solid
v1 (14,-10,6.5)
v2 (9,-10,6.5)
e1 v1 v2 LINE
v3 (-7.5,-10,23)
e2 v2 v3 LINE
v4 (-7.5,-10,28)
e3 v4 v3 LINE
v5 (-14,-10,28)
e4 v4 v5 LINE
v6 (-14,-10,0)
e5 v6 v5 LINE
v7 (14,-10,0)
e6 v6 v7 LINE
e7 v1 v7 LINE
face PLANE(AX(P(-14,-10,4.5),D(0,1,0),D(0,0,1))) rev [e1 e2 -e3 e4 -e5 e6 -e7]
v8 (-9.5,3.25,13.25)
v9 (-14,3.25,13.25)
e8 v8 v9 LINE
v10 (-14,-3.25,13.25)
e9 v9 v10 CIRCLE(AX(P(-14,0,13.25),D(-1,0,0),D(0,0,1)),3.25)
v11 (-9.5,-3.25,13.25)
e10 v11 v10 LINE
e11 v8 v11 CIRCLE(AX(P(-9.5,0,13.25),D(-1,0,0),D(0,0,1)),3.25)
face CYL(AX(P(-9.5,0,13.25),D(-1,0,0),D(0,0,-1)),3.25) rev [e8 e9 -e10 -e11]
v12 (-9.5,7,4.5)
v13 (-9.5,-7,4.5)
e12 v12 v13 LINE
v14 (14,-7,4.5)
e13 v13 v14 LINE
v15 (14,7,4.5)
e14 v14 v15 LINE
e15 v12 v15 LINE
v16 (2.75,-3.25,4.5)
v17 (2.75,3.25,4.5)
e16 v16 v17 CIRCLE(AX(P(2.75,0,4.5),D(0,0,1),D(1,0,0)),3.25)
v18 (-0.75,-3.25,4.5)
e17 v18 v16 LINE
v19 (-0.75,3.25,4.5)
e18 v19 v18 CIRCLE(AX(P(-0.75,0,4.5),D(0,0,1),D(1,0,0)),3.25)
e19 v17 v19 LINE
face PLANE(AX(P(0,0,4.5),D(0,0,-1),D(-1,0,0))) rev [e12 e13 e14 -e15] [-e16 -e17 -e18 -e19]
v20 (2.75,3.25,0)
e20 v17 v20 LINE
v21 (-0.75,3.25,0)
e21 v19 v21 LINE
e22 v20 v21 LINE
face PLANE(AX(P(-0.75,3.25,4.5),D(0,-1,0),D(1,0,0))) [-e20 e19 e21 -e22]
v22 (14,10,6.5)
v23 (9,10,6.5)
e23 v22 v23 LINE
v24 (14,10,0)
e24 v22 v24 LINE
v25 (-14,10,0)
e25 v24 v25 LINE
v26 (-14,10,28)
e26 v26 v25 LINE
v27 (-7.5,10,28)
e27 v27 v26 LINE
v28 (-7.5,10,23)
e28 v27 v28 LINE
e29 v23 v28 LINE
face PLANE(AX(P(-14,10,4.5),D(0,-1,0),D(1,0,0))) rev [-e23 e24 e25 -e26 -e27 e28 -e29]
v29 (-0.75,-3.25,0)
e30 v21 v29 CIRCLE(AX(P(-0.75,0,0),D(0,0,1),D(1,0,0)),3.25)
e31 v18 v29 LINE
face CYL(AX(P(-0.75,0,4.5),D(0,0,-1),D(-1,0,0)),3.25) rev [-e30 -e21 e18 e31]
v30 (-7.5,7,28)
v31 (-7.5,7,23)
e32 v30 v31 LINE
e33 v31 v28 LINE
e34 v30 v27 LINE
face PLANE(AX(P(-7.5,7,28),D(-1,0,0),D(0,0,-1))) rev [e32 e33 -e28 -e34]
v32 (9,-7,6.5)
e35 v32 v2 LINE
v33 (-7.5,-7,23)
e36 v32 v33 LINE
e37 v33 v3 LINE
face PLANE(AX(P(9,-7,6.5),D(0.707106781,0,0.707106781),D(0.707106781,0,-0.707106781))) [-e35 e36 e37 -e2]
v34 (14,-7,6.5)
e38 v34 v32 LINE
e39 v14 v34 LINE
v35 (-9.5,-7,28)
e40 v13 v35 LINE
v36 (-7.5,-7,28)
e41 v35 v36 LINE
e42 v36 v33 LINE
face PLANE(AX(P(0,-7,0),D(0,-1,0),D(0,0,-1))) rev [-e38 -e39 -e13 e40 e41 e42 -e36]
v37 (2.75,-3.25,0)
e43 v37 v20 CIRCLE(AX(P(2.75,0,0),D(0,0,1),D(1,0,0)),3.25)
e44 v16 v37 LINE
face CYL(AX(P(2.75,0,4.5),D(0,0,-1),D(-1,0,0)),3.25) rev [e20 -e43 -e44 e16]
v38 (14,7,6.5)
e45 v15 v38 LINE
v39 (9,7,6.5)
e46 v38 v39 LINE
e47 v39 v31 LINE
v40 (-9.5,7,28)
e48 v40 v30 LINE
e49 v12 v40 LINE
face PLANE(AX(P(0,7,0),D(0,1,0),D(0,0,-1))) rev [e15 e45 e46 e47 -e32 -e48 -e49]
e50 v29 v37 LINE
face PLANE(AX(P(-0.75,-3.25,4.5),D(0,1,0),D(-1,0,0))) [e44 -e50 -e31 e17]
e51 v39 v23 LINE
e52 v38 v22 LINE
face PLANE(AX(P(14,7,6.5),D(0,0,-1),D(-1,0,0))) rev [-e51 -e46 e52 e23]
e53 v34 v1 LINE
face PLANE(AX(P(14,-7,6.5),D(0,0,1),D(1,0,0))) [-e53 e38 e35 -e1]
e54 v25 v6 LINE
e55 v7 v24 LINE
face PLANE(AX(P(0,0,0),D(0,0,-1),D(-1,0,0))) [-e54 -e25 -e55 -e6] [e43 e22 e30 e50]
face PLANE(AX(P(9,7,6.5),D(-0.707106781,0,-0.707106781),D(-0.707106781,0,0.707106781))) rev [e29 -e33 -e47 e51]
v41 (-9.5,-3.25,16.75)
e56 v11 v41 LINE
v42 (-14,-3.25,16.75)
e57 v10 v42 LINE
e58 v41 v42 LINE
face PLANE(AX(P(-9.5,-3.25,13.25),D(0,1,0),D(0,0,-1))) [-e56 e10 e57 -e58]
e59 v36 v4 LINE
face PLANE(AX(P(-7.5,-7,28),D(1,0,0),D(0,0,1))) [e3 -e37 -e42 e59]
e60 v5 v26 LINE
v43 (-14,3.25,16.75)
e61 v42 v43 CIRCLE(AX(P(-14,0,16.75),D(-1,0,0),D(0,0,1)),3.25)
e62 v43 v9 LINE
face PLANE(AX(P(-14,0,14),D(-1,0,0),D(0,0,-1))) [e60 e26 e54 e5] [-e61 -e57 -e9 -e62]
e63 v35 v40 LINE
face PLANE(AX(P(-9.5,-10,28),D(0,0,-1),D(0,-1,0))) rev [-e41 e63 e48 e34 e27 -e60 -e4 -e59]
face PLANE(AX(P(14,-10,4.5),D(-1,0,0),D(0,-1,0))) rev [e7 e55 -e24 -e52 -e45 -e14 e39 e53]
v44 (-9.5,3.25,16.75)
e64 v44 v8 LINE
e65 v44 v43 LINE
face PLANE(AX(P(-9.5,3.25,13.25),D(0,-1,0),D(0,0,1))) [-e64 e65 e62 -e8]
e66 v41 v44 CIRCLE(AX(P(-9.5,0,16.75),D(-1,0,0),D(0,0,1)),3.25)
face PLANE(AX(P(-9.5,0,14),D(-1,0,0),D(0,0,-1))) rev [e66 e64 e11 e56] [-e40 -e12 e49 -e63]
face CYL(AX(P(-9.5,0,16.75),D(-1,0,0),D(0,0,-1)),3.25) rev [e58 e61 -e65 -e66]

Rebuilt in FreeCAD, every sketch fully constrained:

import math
import FreeCAD as App
import Part
import Sketcher
Q = App.Units.Quantity


def add_polygon(sketch, points):
    """Adds a closed chain of lines whose ends are joined by coincident constraints."""
    first, n = sketch.GeometryCount, len(points)
    for a, b in zip(points, points[1:] + points[:1]):
        sketch.addGeometry(Part.LineSegment(App.Vector(*a, 0), App.Vector(*b, 0)), False)
    for i in range(n):
        sketch.addConstraint(Sketcher.Constraint("Coincident", first + i, 2, first + (i + 1) % n, 1))

doc = App.newDocument("Part")
params = doc.addObject("Spreadsheet::Sheet", "Params")
for row, (alias, value) in enumerate([
    ("sketch1_width", "28 mm"),
    ("sketch1_height", "20 mm"),
    ("sketch1_radius", "3.25 mm"),
    ("sketch1_width2", "3.5 mm"),
    ("pad1_length", "4.5 mm"),
    ("sketch2_width", "4.5 mm"),
    ("pocket1_length", "22 mm"),
    ("sketch3_width", "5 mm"),
    ("sketch3_height", "2 mm"),
    ("sketch3_width2", "23.5 mm"),
    ("pad2_length", "3 mm"),
], start=1):
    params.set(f"A{row}", alias)
    params.set(f"B{row}", "=" + value)
    params.setAlias(f"B{row}", alias)

body = doc.addObject("PartDesign::Body", "Body")

# Sketch on XY plane
sketch1 = doc.addObject("Sketcher::SketchObject", "Sketch")
body.addObject(sketch1)
sketch1.AttachmentSupport = (doc.XY_Plane, [""])
sketch1.MapMode = "FlatFace"
add_polygon(sketch1, [(-14, 10), (-14, -10), (14, -10), (14, 10)])  # lines 0-3
sketch1.addGeometry(Part.ArcOfCircle(Part.Circle(App.Vector(-0.8, 0, 0), App.Vector(0, 0, 1), 3.2), math.radians(90), math.radians(270)), False)  # 4
sketch1.addGeometry(Part.LineSegment(App.Vector(-0.8, 3.2, 0), App.Vector(2.8, 3.2, 0)), False)  # 5
sketch1.addGeometry(Part.ArcOfCircle(Part.Circle(App.Vector(2.8, 0, 0), App.Vector(0, 0, 1), 3.2), math.radians(-90), math.radians(90)), False)  # 6
sketch1.addGeometry(Part.LineSegment(App.Vector(2.8, -3.2, 0), App.Vector(-0.8, -3.2, 0)), False)  # 7
sketch1.addConstraint(Sketcher.Constraint("Tangent", 4, 1, 5, 1))
sketch1.addConstraint(Sketcher.Constraint("Tangent", 5, 2, 6, 2))
sketch1.addConstraint(Sketcher.Constraint("Tangent", 6, 1, 7, 1))
sketch1.addConstraint(Sketcher.Constraint("Tangent", 7, 2, 4, 2))
sketch1.addConstraint(Sketcher.Constraint("Vertical", 0))
sketch1.addConstraint(Sketcher.Constraint("Horizontal", 1))
sketch1.addConstraint(Sketcher.Constraint("Vertical", 2))
sketch1.addConstraint(Sketcher.Constraint("Horizontal", 3))
sketch1.addConstraint(Sketcher.Constraint("Horizontal", 5))
sketch1.addConstraint(Sketcher.Constraint("Horizontal", 7))
sketch1.addConstraint(Sketcher.Constraint("Symmetric", 0, 2, 2, 2, -1, 1))
sketch1.addConstraint(Sketcher.Constraint("PointOnObject", 4, 3, -1))
sketch1.addConstraint(Sketcher.Constraint("DistanceX", 1, 1, 1, 2, 28.0))
sketch1.addConstraint(Sketcher.Constraint("DistanceY", 0, 2, 0, 1, 20.0))
sketch1.addConstraint(Sketcher.Constraint("Radius", 4, 3.25))
sketch1.addConstraint(Sketcher.Constraint("DistanceX", 5, 1, 5, 2, 3.5))
sketch1.addConstraint(Sketcher.Constraint("DistanceX", 4, 3, -1, 1, 0.75))
sketch1.setExpression("Constraints[16]", "Params.sketch1_width")
sketch1.setExpression("Constraints[17]", "Params.sketch1_height")
sketch1.setExpression("Constraints[18]", "Params.sketch1_radius")
sketch1.setExpression("Constraints[19]", "Params.sketch1_width2")
pad1 = doc.addObject("PartDesign::Pad", "Pad")
body.addObject(pad1)
pad1.Profile = sketch1
pad1.setExpression("Length", "Params.pad1_length")

# Sketch on XZ plane
sketch2 = doc.addObject("Sketcher::SketchObject", "Sketch001")
body.addObject(sketch2)
sketch2.AttachmentSupport = (doc.XZ_Plane, [""])
sketch2.MapMode = "FlatFace"
sketch2.AttachmentOffset = App.Placement(App.Vector(0, 0, 10), App.Rotation())
add_polygon(sketch2, [(-14, 0), (-9.5, 4.5), (-14, 4.5)])  # lines 0-2
sketch2.addConstraint(Sketcher.Constraint("Horizontal", 1))
sketch2.addConstraint(Sketcher.Constraint("Vertical", 2))
sketch2.addConstraint(Sketcher.Constraint("PointOnObject", 2, 2, -1))
sketch2.addConstraint(Sketcher.Constraint("Equal", 1, 2))
sketch2.addConstraint(Sketcher.Constraint("DistanceX", 1, 2, 1, 1, 4.5))
sketch2.addConstraint(Sketcher.Constraint("DistanceX", 1, 2, -1, 1, 14.0))
sketch2.setExpression("Constraints[7]", "Params.sketch2_width")
pocket1 = doc.addObject("PartDesign::Pocket", "Pocket")
body.addObject(pocket1)
pocket1.Profile = sketch2
pocket1.setExpression("Length", "Params.pocket1_length")

# Sketch on XZ plane
sketch3 = doc.addObject("Sketcher::SketchObject", "Sketch002")
body.addObject(sketch3)
sketch3.AttachmentSupport = (doc.XZ_Plane, [""])
sketch3.MapMode = "FlatFace"
sketch3.AttachmentOffset = App.Placement(App.Vector(0, 0, 10), App.Rotation())
add_polygon(sketch3, [(14, 4.5), (14, 6.5), (9, 6.5), (0.8, 14.8), (-9.5, 4.5)])  # lines 0-4
sketch3.addConstraint(Sketcher.Constraint("Vertical", 0))
sketch3.addConstraint(Sketcher.Constraint("Horizontal", 1))
sketch3.addConstraint(Sketcher.Constraint("Horizontal", 4))
sketch3.addConstraint(Sketcher.Constraint("Perpendicular", 2, 3))
sketch3.addConstraint(Sketcher.Constraint("DistanceX", 1, 2, 1, 1, 5.0))
sketch3.addConstraint(Sketcher.Constraint("DistanceY", 0, 1, 0, 2, 2.0))
sketch3.addConstraint(Sketcher.Constraint("Angle", 2, Q("135 deg")))
sketch3.addConstraint(Sketcher.Constraint("DistanceX", 4, 1, 4, 2, 23.5))
sketch3.addConstraint(Sketcher.Constraint("DistanceX", -1, 1, 0, 2, 14.0))
sketch3.addConstraint(Sketcher.Constraint("DistanceY", -1, 1, 0, 2, 6.5))
sketch3.setExpression("Constraints[9]", "Params.sketch3_width")
sketch3.setExpression("Constraints[10]", "Params.sketch3_height")
sketch3.setExpression("Constraints[12]", "Params.sketch3_width2")
pad2 = doc.addObject("PartDesign::Pad", "Pad001")
body.addObject(pad2)
pad2.Profile = sketch3
pad2.setExpression("Length", "Params.pad2_length")
pad2.Reversed = True
doc.recompute()

mirrored = doc.addObject("PartDesign::Mirrored", "Mirrored")
body.addObject(mirrored)
mirrored.Originals = [pad2]
mirrored.MirrorPlane = (doc.XZ_Plane, [""])
body.Tip = mirrored
body2 = doc.addObject("PartDesign::Body", "Body001")
doc.recompute()

body2.BaseFeature = body
doc.recompute()

mirroring = doc.addObject("Part::Mirroring", "Mirroring")
mirroring.Source = body
mirroring.Base = App.Vector(-14, 12, 0)
mirroring.Normal = App.Vector(0.707106781, 0, -0.707106781)
body3 = doc.addObject("PartDesign::Body", "Body002")
body3.BaseFeature = mirroring
boolean = doc.addObject("PartDesign::Boolean", "Boolean")
body2.addObject(boolean)
boolean.Type = "Fuse"
boolean.addObjects([body3])
doc.recompute()
mirroring.Visibility = False

doc.recompute()
